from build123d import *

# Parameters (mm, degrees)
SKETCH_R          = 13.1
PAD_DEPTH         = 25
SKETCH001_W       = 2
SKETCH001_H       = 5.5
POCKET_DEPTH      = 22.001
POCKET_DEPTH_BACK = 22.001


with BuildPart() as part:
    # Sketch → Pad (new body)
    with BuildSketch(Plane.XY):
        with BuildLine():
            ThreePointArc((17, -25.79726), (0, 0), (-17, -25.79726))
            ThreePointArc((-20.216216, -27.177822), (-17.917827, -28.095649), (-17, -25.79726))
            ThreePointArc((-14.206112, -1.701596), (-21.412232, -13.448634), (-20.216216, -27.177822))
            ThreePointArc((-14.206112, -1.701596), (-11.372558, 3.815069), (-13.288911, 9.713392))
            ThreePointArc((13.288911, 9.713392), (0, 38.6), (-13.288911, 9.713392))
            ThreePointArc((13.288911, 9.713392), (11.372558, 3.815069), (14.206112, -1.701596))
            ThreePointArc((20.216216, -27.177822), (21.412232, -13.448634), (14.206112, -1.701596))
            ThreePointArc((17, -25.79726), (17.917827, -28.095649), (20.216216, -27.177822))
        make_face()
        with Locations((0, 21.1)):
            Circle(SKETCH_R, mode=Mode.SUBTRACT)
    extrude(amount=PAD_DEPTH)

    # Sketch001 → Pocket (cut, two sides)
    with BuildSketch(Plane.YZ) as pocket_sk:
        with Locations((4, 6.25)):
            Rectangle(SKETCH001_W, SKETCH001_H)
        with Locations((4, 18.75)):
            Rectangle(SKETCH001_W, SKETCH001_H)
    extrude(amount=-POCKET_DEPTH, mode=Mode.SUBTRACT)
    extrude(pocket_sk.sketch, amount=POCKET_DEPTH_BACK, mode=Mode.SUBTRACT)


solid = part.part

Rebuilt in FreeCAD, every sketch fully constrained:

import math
import FreeCAD as App
import Part
import Sketcher
from FreeCAD import Vector

doc = App.newDocument("Part")
params = doc.addObject("Spreadsheet::Sheet", "Params")
for row, (alias, value) in enumerate([
    ("sketch1_radius", "22.000001 mm"),
    ("sketch1_diameter", "26.2 mm"),
    ("sketch1_radius2", "18.5 mm"),
    ("sketch1_radius3", "17.5 mm"),
    ("pad1_length", "25 mm"),
    ("sketch2_width", "2 mm"),
    ("sketch2_height", "5.5 mm"),
], start=1):
    params.set(f"A{row}", alias)
    params.set(f"B{row}", "=" + value)
    params.setAlias(f"B{row}", alias)

body = doc.addObject("PartDesign::Body", "Body")

sketch1 = body.newObject("Sketcher::SketchObject", "Sketch")
sketch1.AttachmentSupport = (doc.getObject("XY_Plane"), [""])
sketch1.MapMode = "FlatFace"
sketch1.addGeometry([
    Part.ArcOfCircle(Part.Circle(Vector(0, -18.5, 0), Vector(0, 0, 1), 18.5), math.radians(-23), math.radians(203)),
    Part.ArcOfCircle(Part.Circle(Vector(18.6, -26.5, 0), Vector(0, 0, 1), 1.7), math.radians(157), math.radians(337)),
    Part.ArcOfCircle(Part.Circle(Vector(0, -18.5, 0), Vector(0, 0, 1), 22), math.radians(-23), math.radians(50)),
    Part.ArcOfCircle(Part.Circle(Vector(19.4, 4.5, 0), Vector(0, 0, 1), 8.1), math.radians(139), math.radians(230)),
    Part.ArcOfCircle(Part.Circle(Vector(0, 21.1, 0), Vector(0, 0, 1), 17.5), math.radians(-41), math.radians(221)),
    Part.ArcOfCircle(Part.Circle(Vector(-19.4, 4.5, 0), Vector(0, 0, 1), 8.1), math.radians(-50), math.radians(41)),
    Part.ArcOfCircle(Part.Circle(Vector(0, -18.5, 0), Vector(0, 0, 1), 22), math.radians(130), math.radians(203)),
    Part.ArcOfCircle(Part.Circle(Vector(-18.6, -26.5, 0), Vector(0, 0, 1), 1.7), math.radians(-157), math.radians(23)),
    Part.Circle(Vector(0, 21.1, 0), Vector(0, 0, 1), 13.1),
], False)
sketch1.addConstraint([
    Sketcher.Constraint("Tangent", 0, 1, 1, 1),
    Sketcher.Constraint("Tangent", 1, 2, 2, 1),
    Sketcher.Constraint("Tangent", 2, 2, 3, 2),
    Sketcher.Constraint("Tangent", 3, 1, 4, 1),
    Sketcher.Constraint("Tangent", 4, 2, 5, 2),
    Sketcher.Constraint("Tangent", 5, 1, 6, 1),
    Sketcher.Constraint("Tangent", 6, 2, 7, 1),
    Sketcher.Constraint("Tangent", 7, 2, 0, 2),
    Sketcher.Constraint("Coincident", 2, 3, 0, 3),
    Sketcher.Constraint("Coincident", 6, 3, 0, 3),
    Sketcher.Constraint("Coincident", 8, 3, 4, 3),
    Sketcher.Constraint("Equal", 3, 5),
    Sketcher.Constraint("Equal", 2, 6),
    Sketcher.Constraint("Symmetric", 3, 3, 5, 3, -2),
    Sketcher.Constraint("Horizontal", 1, 3, 7, 3),
    Sketcher.Constraint("Radius", 2, 22.000001),
    Sketcher.Constraint("Diameter", 8, 26.2),
    Sketcher.Constraint("Radius", 0, 18.5),
    Sketcher.Constraint("Radius", 4, 17.5),
    Sketcher.Constraint("DistanceX", -1, 1, 0, 1, 17.0),
    Sketcher.Constraint("DistanceY", 0, 3, -1, 1, 18.5),
    Sketcher.Constraint("DistanceY", -1, 1, 4, 3, 21.1),
    Sketcher.Constraint("Radius", 3, 8.071539),
])
sketch1.setExpression("Constraints[15]", "Params.sketch1_radius")
sketch1.setExpression("Constraints[16]", "Params.sketch1_diameter")
sketch1.setExpression("Constraints[17]", "Params.sketch1_radius2")
sketch1.setExpression("Constraints[18]", "Params.sketch1_radius3")
pad1 = body.newObject("PartDesign::Pad", "Pad")
pad1.Profile = sketch1
pad1.setExpression("Length", "Params.pad1_length")

sketch2 = body.newObject("Sketcher::SketchObject", "Sketch001")
sketch2.AttachmentSupport = (doc.getObject("YZ_Plane"), [""])
sketch2.MapMode = "FlatFace"
sketch2.addGeometry([
    Part.LineSegment(Vector(3, 9, 0), Vector(3, 3.5, 0)),
    Part.LineSegment(Vector(3, 3.5, 0), Vector(5, 3.5, 0)),
    Part.LineSegment(Vector(5, 3.5, 0), Vector(5, 9, 0)),
    Part.LineSegment(Vector(5, 9, 0), Vector(3, 9, 0)),
    Part.LineSegment(Vector(3, 21.5, 0), Vector(3, 16, 0)),
    Part.LineSegment(Vector(3, 16, 0), Vector(5, 16, 0)),
    Part.LineSegment(Vector(5, 16, 0), Vector(5, 21.5, 0)),
    Part.LineSegment(Vector(5, 21.5, 0), Vector(3, 21.5, 0)),
], False)
sketch2.addConstraint([
    Sketcher.Constraint("Coincident", 0, 2, 1, 1),
    Sketcher.Constraint("Coincident", 1, 2, 2, 1),
    Sketcher.Constraint("Coincident", 2, 2, 3, 1),
    Sketcher.Constraint("Coincident", 3, 2, 0, 1),
    Sketcher.Constraint("Coincident", 4, 2, 5, 1),
    Sketcher.Constraint("Coincident", 5, 2, 6, 1),
    Sketcher.Constraint("Coincident", 6, 2, 7, 1),
    Sketcher.Constraint("Coincident", 7, 2, 4, 1),
    Sketcher.Constraint("Vertical", 0),
    Sketcher.Constraint("Horizontal", 1),
    Sketcher.Constraint("Vertical", 2),
    Sketcher.Constraint("Horizontal", 3),
    Sketcher.Constraint("Vertical", 4),
    Sketcher.Constraint("Horizontal", 5),
    Sketcher.Constraint("Vertical", 6),
    Sketcher.Constraint("Horizontal", 7),
    Sketcher.Constraint("Vertical", 3, 2, 4, 2),
    Sketcher.Constraint("Vertical", 2, 2, 5, 2),
    Sketcher.Constraint("Equal", 2, 4),
    Sketcher.Constraint("DistanceX", 1, 1, 1, 2, 2.0),
    Sketcher.Constraint("DistanceY", 0, 2, 0, 1, 5.5),
    Sketcher.Constraint("DistanceX", -1, 1, 0, 2, 3.0),
    Sketcher.Constraint("DistanceY", -1, 1, 2, 2, 9.0),
    Sketcher.Constraint("DistanceY", -1, 1, 4, 2, 16.0),
])
sketch2.setExpression("Constraints[19]", "Params.sketch2_width")
sketch2.setExpression("Constraints[20]", "Params.sketch2_height")
pocket1 = body.newObject("PartDesign::Pocket", "Pocket")
pocket1.Profile = sketch2
pocket1.Type = "ThroughAll"
pocket1.Midplane = True

doc.recompute()
